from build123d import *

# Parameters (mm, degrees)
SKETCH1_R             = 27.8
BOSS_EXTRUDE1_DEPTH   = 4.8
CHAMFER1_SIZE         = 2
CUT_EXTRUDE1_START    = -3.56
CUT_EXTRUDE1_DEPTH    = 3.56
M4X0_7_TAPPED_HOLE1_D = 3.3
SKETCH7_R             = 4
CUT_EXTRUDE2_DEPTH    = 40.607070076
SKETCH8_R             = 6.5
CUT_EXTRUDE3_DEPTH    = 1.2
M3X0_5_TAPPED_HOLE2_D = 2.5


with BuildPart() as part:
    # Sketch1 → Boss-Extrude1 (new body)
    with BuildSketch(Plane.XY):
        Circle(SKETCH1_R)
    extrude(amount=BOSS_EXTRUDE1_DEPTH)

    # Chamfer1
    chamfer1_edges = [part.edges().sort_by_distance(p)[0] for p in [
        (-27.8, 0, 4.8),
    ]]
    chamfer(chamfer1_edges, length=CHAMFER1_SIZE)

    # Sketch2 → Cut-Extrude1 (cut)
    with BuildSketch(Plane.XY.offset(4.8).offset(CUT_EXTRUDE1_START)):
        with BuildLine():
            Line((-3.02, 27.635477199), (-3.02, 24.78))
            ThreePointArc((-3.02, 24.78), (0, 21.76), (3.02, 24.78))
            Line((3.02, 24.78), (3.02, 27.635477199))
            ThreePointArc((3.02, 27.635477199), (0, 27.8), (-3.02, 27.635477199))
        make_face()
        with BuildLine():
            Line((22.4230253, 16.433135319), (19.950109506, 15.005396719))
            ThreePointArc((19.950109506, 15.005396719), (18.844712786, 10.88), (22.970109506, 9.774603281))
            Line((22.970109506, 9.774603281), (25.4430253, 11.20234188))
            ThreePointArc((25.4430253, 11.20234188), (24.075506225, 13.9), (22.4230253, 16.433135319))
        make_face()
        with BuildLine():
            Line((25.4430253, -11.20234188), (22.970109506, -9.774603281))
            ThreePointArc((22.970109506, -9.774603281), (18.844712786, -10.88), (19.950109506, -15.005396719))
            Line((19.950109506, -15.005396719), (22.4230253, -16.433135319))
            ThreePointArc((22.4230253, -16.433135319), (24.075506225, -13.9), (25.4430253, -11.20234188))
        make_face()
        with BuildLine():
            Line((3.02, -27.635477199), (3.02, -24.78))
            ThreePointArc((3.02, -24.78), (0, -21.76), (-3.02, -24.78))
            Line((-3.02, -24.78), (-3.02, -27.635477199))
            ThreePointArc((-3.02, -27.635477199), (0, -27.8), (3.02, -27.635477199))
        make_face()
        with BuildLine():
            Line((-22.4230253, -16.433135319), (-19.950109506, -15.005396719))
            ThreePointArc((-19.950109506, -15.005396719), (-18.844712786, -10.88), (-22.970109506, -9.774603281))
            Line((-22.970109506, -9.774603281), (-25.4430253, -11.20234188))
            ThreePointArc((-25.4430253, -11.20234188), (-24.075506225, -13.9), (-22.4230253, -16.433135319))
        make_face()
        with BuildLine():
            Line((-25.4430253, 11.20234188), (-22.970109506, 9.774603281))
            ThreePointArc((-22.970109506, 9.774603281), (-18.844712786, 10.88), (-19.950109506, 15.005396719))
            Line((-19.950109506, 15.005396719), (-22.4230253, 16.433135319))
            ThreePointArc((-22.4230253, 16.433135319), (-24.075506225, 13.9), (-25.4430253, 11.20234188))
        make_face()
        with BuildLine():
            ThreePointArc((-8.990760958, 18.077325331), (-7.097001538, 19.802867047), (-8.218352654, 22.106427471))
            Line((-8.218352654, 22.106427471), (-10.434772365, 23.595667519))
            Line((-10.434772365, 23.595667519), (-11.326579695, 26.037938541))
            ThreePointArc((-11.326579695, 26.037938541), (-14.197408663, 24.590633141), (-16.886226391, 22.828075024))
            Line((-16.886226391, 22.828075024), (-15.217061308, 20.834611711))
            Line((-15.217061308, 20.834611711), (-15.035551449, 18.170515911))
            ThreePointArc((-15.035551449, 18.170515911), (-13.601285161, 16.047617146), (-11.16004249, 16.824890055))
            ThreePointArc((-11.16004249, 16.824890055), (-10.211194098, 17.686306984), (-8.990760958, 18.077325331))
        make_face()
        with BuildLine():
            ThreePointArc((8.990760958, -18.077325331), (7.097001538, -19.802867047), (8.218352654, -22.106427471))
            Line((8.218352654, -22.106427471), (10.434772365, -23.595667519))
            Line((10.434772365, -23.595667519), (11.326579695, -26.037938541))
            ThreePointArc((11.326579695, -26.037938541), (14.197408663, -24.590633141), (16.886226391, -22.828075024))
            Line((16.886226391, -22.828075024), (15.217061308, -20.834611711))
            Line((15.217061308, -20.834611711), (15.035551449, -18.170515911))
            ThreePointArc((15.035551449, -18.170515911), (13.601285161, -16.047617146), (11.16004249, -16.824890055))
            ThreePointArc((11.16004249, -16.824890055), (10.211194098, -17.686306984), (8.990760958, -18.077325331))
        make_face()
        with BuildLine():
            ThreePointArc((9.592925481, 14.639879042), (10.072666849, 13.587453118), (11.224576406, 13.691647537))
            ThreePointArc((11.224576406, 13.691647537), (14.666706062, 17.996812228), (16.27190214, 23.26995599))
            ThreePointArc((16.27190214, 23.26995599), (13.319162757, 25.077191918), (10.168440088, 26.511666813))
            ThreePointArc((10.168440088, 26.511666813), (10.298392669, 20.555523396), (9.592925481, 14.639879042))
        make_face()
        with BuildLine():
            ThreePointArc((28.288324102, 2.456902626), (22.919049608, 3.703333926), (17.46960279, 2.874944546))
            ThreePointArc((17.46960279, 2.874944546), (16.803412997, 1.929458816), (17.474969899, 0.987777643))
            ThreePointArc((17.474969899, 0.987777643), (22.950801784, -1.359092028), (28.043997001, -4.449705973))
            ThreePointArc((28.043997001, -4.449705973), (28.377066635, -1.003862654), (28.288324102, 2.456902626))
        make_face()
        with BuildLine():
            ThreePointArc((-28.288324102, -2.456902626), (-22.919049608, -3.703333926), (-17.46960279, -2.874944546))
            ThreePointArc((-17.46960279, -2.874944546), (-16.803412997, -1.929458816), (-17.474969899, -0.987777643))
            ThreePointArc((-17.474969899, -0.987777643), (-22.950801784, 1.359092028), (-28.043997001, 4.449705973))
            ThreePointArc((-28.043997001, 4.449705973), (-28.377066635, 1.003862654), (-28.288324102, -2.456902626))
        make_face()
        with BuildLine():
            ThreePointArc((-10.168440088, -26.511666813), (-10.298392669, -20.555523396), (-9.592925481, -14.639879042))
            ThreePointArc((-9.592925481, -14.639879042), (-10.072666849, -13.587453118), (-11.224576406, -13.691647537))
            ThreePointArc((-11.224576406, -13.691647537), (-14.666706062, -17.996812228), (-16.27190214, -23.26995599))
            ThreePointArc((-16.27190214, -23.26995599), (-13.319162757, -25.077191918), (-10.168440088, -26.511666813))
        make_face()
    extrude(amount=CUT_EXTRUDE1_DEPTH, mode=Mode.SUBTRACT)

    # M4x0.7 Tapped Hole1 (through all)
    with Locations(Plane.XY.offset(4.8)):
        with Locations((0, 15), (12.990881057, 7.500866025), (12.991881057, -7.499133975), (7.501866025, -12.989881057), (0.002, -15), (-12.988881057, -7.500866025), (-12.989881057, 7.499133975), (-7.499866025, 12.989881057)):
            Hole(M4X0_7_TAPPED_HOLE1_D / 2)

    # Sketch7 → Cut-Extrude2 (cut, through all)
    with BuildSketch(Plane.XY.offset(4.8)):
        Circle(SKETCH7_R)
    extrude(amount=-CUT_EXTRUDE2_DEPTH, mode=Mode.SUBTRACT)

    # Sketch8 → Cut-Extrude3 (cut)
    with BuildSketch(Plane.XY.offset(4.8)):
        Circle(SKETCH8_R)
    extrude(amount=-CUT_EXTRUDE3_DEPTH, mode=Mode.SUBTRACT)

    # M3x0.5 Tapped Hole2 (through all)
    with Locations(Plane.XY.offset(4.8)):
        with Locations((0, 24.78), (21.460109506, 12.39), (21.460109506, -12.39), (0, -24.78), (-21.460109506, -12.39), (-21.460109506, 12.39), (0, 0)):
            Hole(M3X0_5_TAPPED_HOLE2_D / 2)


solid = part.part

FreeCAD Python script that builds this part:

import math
import FreeCAD as App
import Part
import Sketcher

V = App.Vector
Q = App.Units.Quantity


def edges_at(feature, points):
    """Names of the edges that pass closest to the given points."""
    edges = feature.Shape.Edges
    near = lambda p: min(range(len(edges)), key=lambda i: edges[i].distToShape(Part.Vertex(*p))[0])
    return sorted({f"Edge{near(p) + 1}" for p in points})

doc = App.newDocument("Part")
params = doc.addObject("Spreadsheet::Sheet", "Params")
for row, (alias, value) in enumerate([
    ("sketch1_diameter", "55.6 mm"),
    ("pad1_length", "4.8 mm"),
    ("chamfer_size", "2 mm"),
    ("sketch2_radius", "1 mm"),
    ("sketch2_radius2", "27.8 mm"),
    ("sketch2_radius3", "3.02 mm"),
    ("sketch2_length", "2.600002 mm"),
    ("pocket1_length", "3.56 mm"),
    ("sketch3_diameter", "3.3 mm"),
    ("hole_diameter", "3.3 mm"),
    ("sketch4_diameter", "8 mm"),
    ("sketch5_diameter", "13 mm"),
    ("pocket3_length", "1.2 mm"),
    ("sketch6_diameter", "2.5 mm"),
    ("hole2_diameter", "2.5 mm"),
], start=1):
    params.set(f"A{row}", alias)
    params.set(f"B{row}", "=" + value)
    params.setAlias(f"B{row}", alias)

body = doc.addObject("PartDesign::Body", "Body")

sketch1 = doc.addObject("Sketcher::SketchObject", "Sketch")
body.addObject(sketch1)
sketch1.AttachmentSupport = (doc.XY_Plane, [""])
sketch1.MapMode = "FlatFace"
sketch1.addGeometry(Part.Circle(V(0, 0, 0), V(0, 0, 1), 28), False)
sketch1.addConstraint([
    Sketcher.Constraint("Coincident", 0, 3, -1, 1),
    Sketcher.Constraint("Diameter", 0, Q("55.6 mm")),
])
sketch1.setExpression("Constraints[1]", "Params.sketch1_diameter")
pad1 = doc.addObject("PartDesign::Pad", "Pad")
body.addObject(pad1)
pad1.Profile = sketch1
pad1.setExpression("Length", "Params.pad1_length")
doc.recompute()

chamfer = doc.addObject("PartDesign::Chamfer", "Chamfer")
body.addObject(chamfer)
chamfer.Base = (pad1, edges_at(pad1, [(-27.8, 0, 4.8)]))
chamfer.setExpression("Size", "Params.chamfer_size")

sketch2 = doc.addObject("Sketcher::SketchObject", "Sketch001")
body.addObject(sketch2)
sketch2.AttachmentSupport = (doc.XY_Plane, [""])
sketch2.MapMode = "FlatFace"
sketch2.AttachmentOffset = App.Placement(V(0, 0, 1.24), App.Rotation())
sketch2.addGeometry([
    Part.LineSegment(V(-3, 27.6, 0), V(-3, 24.8, 0)),
    Part.ArcOfCircle(Part.Circle(V(0, 24.8, 0), V(0, 0, 1), 3), math.radians(180), math.radians(360)),
    Part.LineSegment(V(3, 24.8, 0), V(3, 27.6, 0)),
    Part.ArcOfCircle(Part.Circle(V(0, 0, 0), V(0, 0, 1), 27.8), math.radians(83.76), math.radians(96.24)),
    Part.LineSegment(V(22.4, 16.4, 0), V(20, 15, 0)),
    Part.ArcOfCircle(Part.Circle(V(21.5, 12.4, 0), V(0, 0, 1), 3), math.radians(120), math.radians(300)),
    Part.LineSegment(V(23, 9.8, 0), V(25.4, 11.2, 0)),
    Part.ArcOfCircle(Part.Circle(V(0, 0, 0), V(0, 0, 1), 27.8), math.radians(23.76), math.radians(36.24)),
    Part.LineSegment(V(25.4, -11.2, 0), V(23, -9.8, 0)),
    Part.ArcOfCircle(Part.Circle(V(21.5, -12.4, 0), V(0, 0, 1), 3), math.radians(60), math.radians(240)),
    Part.LineSegment(V(20, -15, 0), V(22.4, -16.4, 0)),
    Part.ArcOfCircle(Part.Circle(V(0, 0, 0), V(0, 0, 1), 27.8), math.radians(-36.24), math.radians(-23.76)),
    Part.LineSegment(V(3, -27.6, 0), V(3, -24.8, 0)),
    Part.ArcOfCircle(Part.Circle(V(0, -24.8, 0), V(0, 0, 1), 3), math.radians(0), math.radians(180)),
    Part.LineSegment(V(-3, -24.8, 0), V(-3, -27.6, 0)),
    Part.ArcOfCircle(Part.Circle(V(0, 0, 0), V(0, 0, 1), 27.8), math.radians(-96.24), math.radians(-83.76)),
    Part.LineSegment(V(-22.4, -16.4, 0), V(-20, -15, 0)),
    Part.ArcOfCircle(Part.Circle(V(-21.5, -12.4, 0), V(0, 0, 1), 3), math.radians(-60), math.radians(120)),
    Part.LineSegment(V(-23, -9.8, 0), V(-25.4, -11.2, 0)),
    Part.ArcOfCircle(Part.Circle(V(0, 0, 0), V(0, 0, 1), 27.8), math.radians(-156.24), math.radians(-143.76)),
    Part.LineSegment(V(-25.4, 11.2, 0), V(-23, 9.8, 0)),
    Part.ArcOfCircle(Part.Circle(V(-21.5, 12.4, 0), V(0, 0, 1), 3), math.radians(-120), math.radians(60)),
    Part.LineSegment(V(-20, 15, 0), V(-22.4, 16.4, 0)),
    Part.ArcOfCircle(Part.Circle(V(0, 0, 0), V(0, 0, 1), 27.8), math.radians(143.76), math.radians(156.24)),
    Part.ArcOfCircle(Part.Circle(V(-9.2, 20.2, 0), V(0, 0, 1), 2.1), math.radians(-84), math.radians(63)),
    Part.LineSegment(V(-8.2, 22.1, 0), V(-10.4, 23.6, 0)),
    Part.LineSegment(V(-10.4, 23.6, 0), V(-11.3, 26, 0)),
    Part.ArcOfCircle(Part.Circle(V(0, 0, 0), V(0, 0, 1), 28.4), math.radians(113.51), math.radians(126.49)),
    Part.LineSegment(V(-16.9, 22.8, 0), V(-15.2, 20.8, 0)),
    Part.LineSegment(V(-15.2, 20.8, 0), V(-15, 18.2, 0)),
    Part.ArcOfCircle(Part.Circle(V(-12.9, 18.1, 0), V(0, 0, 1), 2.1), math.radians(177), math.radians(324)),
    Part.ArcOfCircle(Part.Circle(V(-8.7, 15.1, 0), V(0, 0, 1), 3), math.radians(96), math.radians(144)),
    Part.ArcOfCircle(Part.Circle(V(9.2, -20.2, 0), V(0, 0, 1), 2.1), math.radians(96), math.radians(243)),
    Part.LineSegment(V(8.2, -22.1, 0), V(10.4, -23.6, 0)),
    Part.LineSegment(V(10.4, -23.6, 0), V(11.3, -26, 0)),
    Part.ArcOfCircle(Part.Circle(V(0, 0, 0), V(0, 0, 1), 28.4), math.radians(-66.49), math.radians(-53.51)),
    Part.LineSegment(V(16.9, -22.8, 0), V(15.2, -20.8, 0)),
    Part.LineSegment(V(15.2, -20.8, 0), V(15, -18.2, 0)),
    Part.ArcOfCircle(Part.Circle(V(12.9, -18.1, 0), V(0, 0, 1), 2.1), math.radians(-3), math.radians(144)),
    Part.ArcOfCircle(Part.Circle(V(8.7, -15.1, 0), V(0, 0, 1), 3), math.radians(-84), math.radians(-36)),
    Part.ArcOfCircle(Part.Circle(V(10.6, 14.5, 0), V(0, 0, 1), 1), math.radians(169), math.radians(311)),
    Part.ArcOfCircle(Part.Circle(V(1.7, 24.8, 0), V(0, 0, 1), 14.6), math.radians(-49), math.radians(-6)),
    Part.ArcOfCircle(Part.Circle(V(0, 0, 0), V(0, 0, 1), 28.4), math.radians(55.04), math.radians(69.02)),
    Part.ArcOfCircle(Part.Circle(V(-32.1, 22.6, 0), V(0, 0, 1), 42.4), math.radians(-10.83), math.radians(5.28)),
    Part.ArcOfCircle(Part.Circle(V(22.4, -10.9, 0), V(0, 0, 1), 14.6), math.radians(66), math.radians(109)),
    Part.ArcOfCircle(Part.Circle(V(17.8, 1.9, 0), V(0, 0, 1), 1), math.radians(109), math.radians(251)),
    Part.ArcOfCircle(Part.Circle(V(3.5, -39.1, 0), V(0, 0, 1), 42.4), math.radians(54.72), math.radians(70.83)),
    Part.ArcOfCircle(Part.Circle(V(0, 0, 0), V(0, 0, 1), 28.4), math.radians(-9.02), math.radians(4.96)),
    Part.ArcOfCircle(Part.Circle(V(-22.4, 10.9, 0), V(0, 0, 1), 14.6), math.radians(-114), math.radians(-71)),
    Part.ArcOfCircle(Part.Circle(V(-17.8, -1.9, 0), V(0, 0, 1), 1), math.radians(-71), math.radians(71)),
    Part.ArcOfCircle(Part.Circle(V(-3.5, 39.1, 0), V(0, 0, 1), 42.4), math.radians(-125.28), math.radians(-109.17)),
    Part.ArcOfCircle(Part.Circle(V(0, 0, 0), V(0, 0, 1), 28.4), math.radians(170.98), math.radians(184.96)),
    Part.ArcOfCircle(Part.Circle(V(32.1, -22.6, 0), V(0, 0, 1), 42.4), math.radians(169.17), math.radians(185.28)),
    Part.ArcOfCircle(Part.Circle(V(-10.6, -14.5, 0), V(0, 0, 1), 1), math.radians(-11), math.radians(131)),
    Part.ArcOfCircle(Part.Circle(V(-1.7, -24.8, 0), V(0, 0, 1), 14.6), math.radians(131), math.radians(174)),
    Part.ArcOfCircle(Part.Circle(V(0, 0, 0), V(0, 0, 1), 28.4), math.radians(-124.96), math.radians(-110.98)),
], False)
sketch2.addConstraint([
    Sketcher.Constraint("Tangent", 0, 2, 1, 1),
    Sketcher.Constraint("Tangent", 1, 2, 2, 1),
    Sketcher.Constraint("Coincident", 2, 2, 3, 1),
    Sketcher.Constraint("Coincident", 3, 2, 0, 1),
    Sketcher.Constraint("Tangent", 4, 2, 5, 1),
    Sketcher.Constraint("Tangent", 5, 2, 6, 1),
    Sketcher.Constraint("Coincident", 6, 2, 7, 1),
    Sketcher.Constraint("Coincident", 7, 2, 4, 1),
    Sketcher.Constraint("Tangent", 8, 2, 9, 1),
    Sketcher.Constraint("Tangent", 9, 2, 10, 1),
    Sketcher.Constraint("Coincident", 10, 2, 11, 1),
    Sketcher.Constraint("Coincident", 11, 2, 8, 1),
    Sketcher.Constraint("Tangent", 12, 2, 13, 1),
    Sketcher.Constraint("Tangent", 13, 2, 14, 1),
    Sketcher.Constraint("Coincident", 14, 2, 15, 1),
    Sketcher.Constraint("Coincident", 15, 2, 12, 1),
    Sketcher.Constraint("Tangent", 16, 2, 17, 1),
    Sketcher.Constraint("Tangent", 17, 2, 18, 1),
    Sketcher.Constraint("Coincident", 18, 2, 19, 1),
    Sketcher.Constraint("Coincident", 19, 2, 16, 1),
    Sketcher.Constraint("Tangent", 20, 2, 21, 1),
    Sketcher.Constraint("Tangent", 21, 2, 22, 1),
    Sketcher.Constraint("Coincident", 22, 2, 23, 1),
    Sketcher.Constraint("Coincident", 23, 2, 20, 1),
    Sketcher.Constraint("Coincident", 24, 2, 25, 1),
    Sketcher.Constraint("Coincident", 25, 2, 26, 1),
    Sketcher.Constraint("Coincident", 26, 2, 27, 1),
    Sketcher.Constraint("Coincident", 27, 2, 28, 1),
    Sketcher.Constraint("Coincident", 28, 2, 29, 1),
    Sketcher.Constraint("Coincident", 29, 2, 30, 1),
    Sketcher.Constraint("Tangent", 30, 2, 31, 2),
    Sketcher.Constraint("Tangent", 31, 1, 24, 1),
    Sketcher.Constraint("Coincident", 32, 2, 33, 1),
    Sketcher.Constraint("Coincident", 33, 2, 34, 1),
    Sketcher.Constraint("Coincident", 34, 2, 35, 1),
    Sketcher.Constraint("Coincident", 35, 2, 36, 1),
    Sketcher.Constraint("Coincident", 36, 2, 37, 1),
    Sketcher.Constraint("Coincident", 37, 2, 38, 1),
    Sketcher.Constraint("Tangent", 38, 2, 39, 2),
    Sketcher.Constraint("Tangent", 39, 1, 32, 1),
    Sketcher.Constraint("Tangent", 40, 2, 41, 1),
    Sketcher.Constraint("Coincident", 41, 2, 42, 1),
    Sketcher.Constraint("Coincident", 42, 2, 43, 2),
    Sketcher.Constraint("Tangent", 43, 1, 40, 1),
    Sketcher.Constraint("Tangent", 44, 2, 45, 1),
    Sketcher.Constraint("Tangent", 45, 2, 46, 2),
    Sketcher.Constraint("Coincident", 46, 1, 47, 1),
    Sketcher.Constraint("Coincident", 47, 2, 44, 1),
    Sketcher.Constraint("Tangent", 48, 2, 49, 1),
    Sketcher.Constraint("Tangent", 49, 2, 50, 2),
    Sketcher.Constraint("Coincident", 50, 1, 51, 1),
    Sketcher.Constraint("Coincident", 51, 2, 48, 1),
    Sketcher.Constraint("Tangent", 52, 1, 53, 1),
    Sketcher.Constraint("Tangent", 53, 2, 54, 1),
    Sketcher.Constraint("Coincident", 54, 2, 55, 1),
    Sketcher.Constraint("Coincident", 55, 2, 52, 2),
    Sketcher.Constraint("Vertical", 0),
    Sketcher.Constraint("Vertical", 2),
    Sketcher.Constraint("Vertical", 12),
    Sketcher.Constraint("Vertical", 14),
    Sketcher.Constraint("Coincident", 3, 3, -1, 1),
    Sketcher.Constraint("Coincident", 7, 3, -1, 1),
    Sketcher.Constraint("Coincident", 11, 3, -1, 1),
    Sketcher.Constraint("Coincident", 15, 3, -1, 1),
    Sketcher.Constraint("Coincident", 19, 3, -1, 1),
    Sketcher.Constraint("Coincident", 23, 3, -1, 1),
    Sketcher.Constraint("Coincident", 27, 3, -1, 1),
    Sketcher.Constraint("Coincident", 35, 3, -1, 1),
    Sketcher.Constraint("Coincident", 42, 3, -1, 1),
    Sketcher.Constraint("Coincident", 47, 3, -1, 1),
    Sketcher.Constraint("Coincident", 51, 3, -1, 1),
    Sketcher.Constraint("Coincident", 55, 3, -1, 1),
    Sketcher.Constraint("Equal", 1, 5),
    Sketcher.Constraint("Equal", 3, 7),
    Sketcher.Constraint("Equal", 5, 9),
    Sketcher.Constraint("Equal", 7, 11),
    Sketcher.Constraint("Equal", 9, 13),
    Sketcher.Constraint("Equal", 11, 15),
    Sketcher.Constraint("Equal", 13, 17),
    Sketcher.Constraint("Equal", 15, 19),
    Sketcher.Constraint("Equal", 17, 21),
    Sketcher.Constraint("Equal", 19, 23),
    Sketcher.Constraint("Equal", 24, 30),
    Sketcher.Constraint("Equal", 30, 32),
    Sketcher.Constraint("Equal", 27, 35),
    Sketcher.Constraint("Equal", 32, 38),
    Sketcher.Constraint("Equal", 31, 39),
    Sketcher.Constraint("Equal", 35, 42),
    Sketcher.Constraint("Equal", 41, 44),
    Sketcher.Constraint("Equal", 40, 45),
    Sketcher.Constraint("Equal", 43, 46),
    Sketcher.Constraint("Equal", 42, 47),
    Sketcher.Constraint("Equal", 44, 48),
    Sketcher.Constraint("Equal", 45, 49),
    Sketcher.Constraint("Equal", 46, 50),
    Sketcher.Constraint("Equal", 47, 51),
    Sketcher.Constraint("Equal", 50, 52),
    Sketcher.Constraint("Equal", 49, 53),
    Sketcher.Constraint("Equal", 48, 54),
    Sketcher.Constraint("Equal", 51, 55),
    Sketcher.Constraint("Symmetric", 1, 3, 13, 3, -1, 1),
    Sketcher.Constraint("Symmetric", 5, 3, 17, 3, -1, 1),
    Sketcher.Constraint("Symmetric", 9, 3, 21, 3, -1, 1),
    Sketcher.Constraint("Symmetric", 24, 3, 32, 3, -1, 1),
    Sketcher.Constraint("Symmetric", 30, 3, 38, 3, -1, 1),
    Sketcher.Constraint("Symmetric", 44, 3, 48, 3, -1, 1),
    Sketcher.Constraint("Symmetric", 46, 3, 50, 3, -1, 1),
    Sketcher.Constraint("Symmetric", 43, 3, 52, 3, -1, 1),
    Sketcher.Constraint("Symmetric", 41, 3, 54, 3, -1, 1),
    Sketcher.Constraint("Symmetric", 25, 2, 33, 2, -1, 1),
    Sketcher.Constraint("Symmetric", 28, 2, 36, 2, -1, 1),
    Sketcher.Constraint("Symmetric", 9, 3, 17, 3, -2),
    Sketcher.Constraint("PointOnObject", 1, 3, -2),
    Sketcher.Constraint("Parallel", 4, 6),
    Sketcher.Constraint("Parallel", 8, 10),
    Sketcher.Constraint("Parallel", 6, 16),
    Sketcher.Constraint("Parallel", 16, 18),
    Sketcher.Constraint("Parallel", 10, 20),
    Sketcher.Constraint("Parallel", 20, 22),
    Sketcher.Constraint("Parallel", 25, 33),
    Sketcher.Constraint("Parallel", 26, 34),
    Sketcher.Constraint("Parallel", 28, 36),
    Sketcher.Constraint("Parallel", 29, 37),
    Sketcher.Constraint("Horizontal", 9, 2, 16, 2),
    Sketcher.Constraint("Equal", 4, 6),
    Sketcher.Constraint("Equal", 26, 28),
    Sketcher.Constraint("Equal", 25, 29),
    Sketcher.Constraint("Radius", 40, Q("1 mm")),
    Sketcher.Constraint("Radius", 3, Q("27.8 mm")),
    Sketcher.Constraint("Angle", 4, Q("-150 deg")),
    Sketcher.Constraint("Radius", 1, Q("3.02 mm")),
    Sketcher.Constraint("Distance", 26, Q("2.600002 mm")),
    Sketcher.Constraint("DistanceX", 30, 3, -1, 1, Q("12.9 mm")),
    Sketcher.Constraint("DistanceY", -1, 1, 1, 3, Q("24.78 mm")),
    Sketcher.Constraint("DistanceY", -1, 1, 5, 3, Q("12.39 mm")),
    Sketcher.Constraint("Radius", 24, Q("2.138041 mm")),
    Sketcher.Constraint("Radius", 41, Q("14.63261 mm")),
    Sketcher.Constraint("Radius", 27, Q("28.394817 mm")),
    Sketcher.Constraint("Radius", 31, Q("3.023646 mm")),
    Sketcher.Constraint("Radius", 43, Q("42.434836 mm")),
    Sketcher.Constraint("Distance", 25, Q("2.670272 mm")),
    Sketcher.Constraint("DistanceX", 31, 3, -1, 1, Q("8.699371 mm")),
    Sketcher.Constraint("DistanceX", 43, 3, -1, 1, Q("32.086668 mm")),
    Sketcher.Constraint("DistanceX", -1, 1, 44, 3, Q("22.354058 mm")),
    Sketcher.Constraint("DistanceX", -1, 1, 45, 3, Q("17.803409 mm")),
    Sketcher.Constraint("DistanceX", 26, 2, -1, 1, Q("11.32658 mm")),
    Sketcher.Constraint("DistanceX", 28, 2, -1, 1, Q("15.217061 mm")),
    Sketcher.Constraint("DistanceY", -1, 1, 28, 2, Q("20.834612 mm")),
    Sketcher.Constraint("DistanceX", 29, 2, -1, 1, Q("15.035551 mm")),
    Sketcher.Constraint("DistanceX", 31, 1, -1, 1, Q("8.990761 mm")),
    Sketcher.Constraint("DistanceX", -1, 1, 42, 2, Q("10.16844 mm")),
    Sketcher.Constraint("DistanceY", -1, 1, 43, 1, Q("14.639879 mm")),
    Sketcher.Constraint("DistanceX", -1, 1, 45, 2, Q("17.47497 mm")),
    Sketcher.Constraint("DistanceX", -1, 1, 41, 3, Q("1.721448 mm")),
    Sketcher.Constraint("DistanceY", 44, 3, -1, 1, Q("10.918365 mm")),
    Sketcher.Constraint("DistanceX", 24, 2, -1, 1, Q("8.218353 mm")),
])
sketch2.setExpression("Constraints[127]", "Params.sketch2_radius")
sketch2.setExpression("Constraints[128]", "Params.sketch2_radius2")
sketch2.setExpression("Constraints[130]", "Params.sketch2_radius3")
sketch2.setExpression("Constraints[131]", "Params.sketch2_length")
pocket1 = doc.addObject("PartDesign::Pocket", "Pocket")
body.addObject(pocket1)
pocket1.Profile = sketch2
pocket1.setExpression("Length", "Params.pocket1_length")
pocket1.Reversed = True

sketch3 = doc.addObject("Sketcher::SketchObject", "Sketch002")
body.addObject(sketch3)
sketch3.AttachmentSupport = (doc.XY_Plane, [""])
sketch3.MapMode = "FlatFace"
sketch3.AttachmentOffset = App.Placement(V(0, 0, 4.8), App.Rotation())
sketch3.addGeometry([
    Part.Circle(V(0, 15, 0), V(0, 0, 1), 1.6),
    Part.Circle(V(13, 7.5, 0), V(0, 0, 1), 1.6),
    Part.Circle(V(13, -7.5, 0), V(0, 0, 1), 1.6),
    Part.Circle(V(7.5, -13, 0), V(0, 0, 1), 1.6),
    Part.Circle(V(0, -15, 0), V(0, 0, 1), 1.6),
    Part.Circle(V(-13, -7.5, 0), V(0, 0, 1), 1.6),
    Part.Circle(V(-13, 7.5, 0), V(0, 0, 1), 1.6),
    Part.Circle(V(-7.5, 13, 0), V(0, 0, 1), 1.6),
], False)
sketch3.addConstraint([
    Sketcher.Constraint("Equal", 0, 1),
    Sketcher.Constraint("Equal", 1, 2),
    Sketcher.Constraint("Equal", 2, 3),
    Sketcher.Constraint("Equal", 3, 4),
    Sketcher.Constraint("Equal", 4, 5),
    Sketcher.Constraint("Equal", 5, 6),
    Sketcher.Constraint("Equal", 6, 7),
    Sketcher.Constraint("PointOnObject", 0, 3, -2),
    Sketcher.Constraint("Diameter", 0, Q("3.3 mm")),
    Sketcher.Constraint("DistanceY", -1, 1, 0, 3, Q("15 mm")),
    Sketcher.Constraint("DistanceY", 4, 3, -1, 1, Q("15 mm")),
    Sketcher.Constraint("DistanceY", 2, 3, 1, 3, Q("15 mm")),
    Sketcher.Constraint("DistanceY", 5, 3, 6, 3, Q("15 mm")),
    Sketcher.Constraint("DistanceX", -1, 1, 4, 3, Q("0.002 mm")),
    Sketcher.Constraint("DistanceX", 1, 3, 2, 3, Q("0.001 mm")),
    Sketcher.Constraint("DistanceX", 6, 3, 5, 3, Q("0.001 mm")),
    Sketcher.Constraint("DistanceX", -1, 1, 1, 3, Q("12.990881 mm")),
    Sketcher.Constraint("DistanceY", 3, 3, -1, 1, Q("12.989881 mm")),
    Sketcher.Constraint("DistanceX", 5, 3, -1, 1, Q("12.988881 mm")),
    Sketcher.Constraint("DistanceY", -1, 1, 7, 3, Q("12.989881 mm")),
    Sketcher.Constraint("DistanceY", -1, 1, 1, 3, Q("7.500866 mm")),
    Sketcher.Constraint("DistanceX", -1, 1, 3, 3, Q("7.501866 mm")),
    Sketcher.Constraint("DistanceY", 5, 3, -1, 1, Q("7.500866 mm")),
    Sketcher.Constraint("DistanceX", 7, 3, -1, 1, Q("7.499866 mm")),
])
sketch3.setExpression("Constraints[8]", "Params.sketch3_diameter")
doc.recompute()
hole = doc.addObject("PartDesign::Hole", "Hole")
body.addObject(hole)
hole.Profile = sketch3
hole.ThreadType = "None"
hole.setExpression("Diameter", "Params.hole_diameter")
hole.DepthType = "ThroughAll"

sketch4 = doc.addObject("Sketcher::SketchObject", "Sketch003")
body.addObject(sketch4)
sketch4.AttachmentSupport = (doc.XY_Plane, [""])
sketch4.MapMode = "FlatFace"
sketch4.AttachmentOffset = App.Placement(V(0, 0, 4.8), App.Rotation())
sketch4.addGeometry(Part.Circle(V(0, 0, 0), V(0, 0, 1), 4), False)
sketch4.addConstraint([
    Sketcher.Constraint("Coincident", 0, 3, -1, 1),
    Sketcher.Constraint("Diameter", 0, Q("8 mm")),
])
sketch4.setExpression("Constraints[1]", "Params.sketch4_diameter")
pocket2 = doc.addObject("PartDesign::Pocket", "Pocket001")
body.addObject(pocket2)
pocket2.Profile = sketch4
pocket2.Type = "ThroughAll"

sketch5 = doc.addObject("Sketcher::SketchObject", "Sketch004")
body.addObject(sketch5)
sketch5.AttachmentSupport = (doc.XY_Plane, [""])
sketch5.MapMode = "FlatFace"
sketch5.AttachmentOffset = App.Placement(V(0, 0, 4.8), App.Rotation())
sketch5.addGeometry(Part.Circle(V(0, 0, 0), V(0, 0, 1), 6), False)
sketch5.addConstraint([
    Sketcher.Constraint("Coincident", 0, 3, -1, 1),
    Sketcher.Constraint("Diameter", 0, Q("13 mm")),
])
sketch5.setExpression("Constraints[1]", "Params.sketch5_diameter")
pocket3 = doc.addObject("PartDesign::Pocket", "Pocket002")
body.addObject(pocket3)
pocket3.Profile = sketch5
pocket3.setExpression("Length", "Params.pocket3_length")

sketch6 = doc.addObject("Sketcher::SketchObject", "Sketch005")
body.addObject(sketch6)
sketch6.AttachmentSupport = (doc.XY_Plane, [""])
sketch6.MapMode = "FlatFace"
sketch6.AttachmentOffset = App.Placement(V(0, 0, 4.8), App.Rotation())
sketch6.addGeometry([
    Part.Circle(V(0, 24.8, 0), V(0, 0, 1), 1.2),
    Part.Circle(V(21.5, 12.4, 0), V(0, 0, 1), 1.2),
    Part.Circle(V(21.5, -12.4, 0), V(0, 0, 1), 1.2),
    Part.Circle(V(0, -24.8, 0), V(0, 0, 1), 1.2),
    Part.Circle(V(-21.5, -12.4, 0), V(0, 0, 1), 1.2),
    Part.Circle(V(-21.5, 12.4, 0), V(0, 0, 1), 1.2),
    Part.Circle(V(0, 0, 0), V(0, 0, 1), 1.2),
], False)
sketch6.addConstraint([
    Sketcher.Constraint("Coincident", 6, 3, -1, 1),
    Sketcher.Constraint("Equal", 0, 1),
    Sketcher.Constraint("Equal", 1, 2),
    Sketcher.Constraint("Equal", 2, 3),
    Sketcher.Constraint("Equal", 3, 4),
    Sketcher.Constraint("Equal", 4, 5),
    Sketcher.Constraint("Equal", 5, 6),
    Sketcher.Constraint("Symmetric", 0, 3, 3, 3, -1, 1),
    Sketcher.Constraint("Symmetric", 1, 3, 4, 3, -1, 1),
    Sketcher.Constraint("Symmetric", 2, 3, 5, 3, -1, 1),
    Sketcher.Constraint("Symmetric", 2, 3, 4, 3, -2),
    Sketcher.Constraint("PointOnObject", 0, 3, -2),
    Sketcher.Constraint("Diameter", 0, Q("2.5 mm")),
    Sketcher.Constraint("DistanceY", -1, 1, 0, 3, Q("24.78 mm")),
    Sketcher.Constraint("DistanceY", -1, 1, 1, 3, Q("12.39 mm")),
    Sketcher.Constraint("DistanceX", -1, 1, 1, 3, Q("21.46011 mm")),
])
sketch6.setExpression("Constraints[12]", "Params.sketch6_diameter")
doc.recompute()
hole2 = doc.addObject("PartDesign::Hole", "Hole001")
body.addObject(hole2)
hole2.Profile = sketch6
hole2.ThreadType = "None"
hole2.setExpression("Diameter", "Params.hole2_diameter")
hole2.DepthType = "ThroughAll"

doc.recompute()
